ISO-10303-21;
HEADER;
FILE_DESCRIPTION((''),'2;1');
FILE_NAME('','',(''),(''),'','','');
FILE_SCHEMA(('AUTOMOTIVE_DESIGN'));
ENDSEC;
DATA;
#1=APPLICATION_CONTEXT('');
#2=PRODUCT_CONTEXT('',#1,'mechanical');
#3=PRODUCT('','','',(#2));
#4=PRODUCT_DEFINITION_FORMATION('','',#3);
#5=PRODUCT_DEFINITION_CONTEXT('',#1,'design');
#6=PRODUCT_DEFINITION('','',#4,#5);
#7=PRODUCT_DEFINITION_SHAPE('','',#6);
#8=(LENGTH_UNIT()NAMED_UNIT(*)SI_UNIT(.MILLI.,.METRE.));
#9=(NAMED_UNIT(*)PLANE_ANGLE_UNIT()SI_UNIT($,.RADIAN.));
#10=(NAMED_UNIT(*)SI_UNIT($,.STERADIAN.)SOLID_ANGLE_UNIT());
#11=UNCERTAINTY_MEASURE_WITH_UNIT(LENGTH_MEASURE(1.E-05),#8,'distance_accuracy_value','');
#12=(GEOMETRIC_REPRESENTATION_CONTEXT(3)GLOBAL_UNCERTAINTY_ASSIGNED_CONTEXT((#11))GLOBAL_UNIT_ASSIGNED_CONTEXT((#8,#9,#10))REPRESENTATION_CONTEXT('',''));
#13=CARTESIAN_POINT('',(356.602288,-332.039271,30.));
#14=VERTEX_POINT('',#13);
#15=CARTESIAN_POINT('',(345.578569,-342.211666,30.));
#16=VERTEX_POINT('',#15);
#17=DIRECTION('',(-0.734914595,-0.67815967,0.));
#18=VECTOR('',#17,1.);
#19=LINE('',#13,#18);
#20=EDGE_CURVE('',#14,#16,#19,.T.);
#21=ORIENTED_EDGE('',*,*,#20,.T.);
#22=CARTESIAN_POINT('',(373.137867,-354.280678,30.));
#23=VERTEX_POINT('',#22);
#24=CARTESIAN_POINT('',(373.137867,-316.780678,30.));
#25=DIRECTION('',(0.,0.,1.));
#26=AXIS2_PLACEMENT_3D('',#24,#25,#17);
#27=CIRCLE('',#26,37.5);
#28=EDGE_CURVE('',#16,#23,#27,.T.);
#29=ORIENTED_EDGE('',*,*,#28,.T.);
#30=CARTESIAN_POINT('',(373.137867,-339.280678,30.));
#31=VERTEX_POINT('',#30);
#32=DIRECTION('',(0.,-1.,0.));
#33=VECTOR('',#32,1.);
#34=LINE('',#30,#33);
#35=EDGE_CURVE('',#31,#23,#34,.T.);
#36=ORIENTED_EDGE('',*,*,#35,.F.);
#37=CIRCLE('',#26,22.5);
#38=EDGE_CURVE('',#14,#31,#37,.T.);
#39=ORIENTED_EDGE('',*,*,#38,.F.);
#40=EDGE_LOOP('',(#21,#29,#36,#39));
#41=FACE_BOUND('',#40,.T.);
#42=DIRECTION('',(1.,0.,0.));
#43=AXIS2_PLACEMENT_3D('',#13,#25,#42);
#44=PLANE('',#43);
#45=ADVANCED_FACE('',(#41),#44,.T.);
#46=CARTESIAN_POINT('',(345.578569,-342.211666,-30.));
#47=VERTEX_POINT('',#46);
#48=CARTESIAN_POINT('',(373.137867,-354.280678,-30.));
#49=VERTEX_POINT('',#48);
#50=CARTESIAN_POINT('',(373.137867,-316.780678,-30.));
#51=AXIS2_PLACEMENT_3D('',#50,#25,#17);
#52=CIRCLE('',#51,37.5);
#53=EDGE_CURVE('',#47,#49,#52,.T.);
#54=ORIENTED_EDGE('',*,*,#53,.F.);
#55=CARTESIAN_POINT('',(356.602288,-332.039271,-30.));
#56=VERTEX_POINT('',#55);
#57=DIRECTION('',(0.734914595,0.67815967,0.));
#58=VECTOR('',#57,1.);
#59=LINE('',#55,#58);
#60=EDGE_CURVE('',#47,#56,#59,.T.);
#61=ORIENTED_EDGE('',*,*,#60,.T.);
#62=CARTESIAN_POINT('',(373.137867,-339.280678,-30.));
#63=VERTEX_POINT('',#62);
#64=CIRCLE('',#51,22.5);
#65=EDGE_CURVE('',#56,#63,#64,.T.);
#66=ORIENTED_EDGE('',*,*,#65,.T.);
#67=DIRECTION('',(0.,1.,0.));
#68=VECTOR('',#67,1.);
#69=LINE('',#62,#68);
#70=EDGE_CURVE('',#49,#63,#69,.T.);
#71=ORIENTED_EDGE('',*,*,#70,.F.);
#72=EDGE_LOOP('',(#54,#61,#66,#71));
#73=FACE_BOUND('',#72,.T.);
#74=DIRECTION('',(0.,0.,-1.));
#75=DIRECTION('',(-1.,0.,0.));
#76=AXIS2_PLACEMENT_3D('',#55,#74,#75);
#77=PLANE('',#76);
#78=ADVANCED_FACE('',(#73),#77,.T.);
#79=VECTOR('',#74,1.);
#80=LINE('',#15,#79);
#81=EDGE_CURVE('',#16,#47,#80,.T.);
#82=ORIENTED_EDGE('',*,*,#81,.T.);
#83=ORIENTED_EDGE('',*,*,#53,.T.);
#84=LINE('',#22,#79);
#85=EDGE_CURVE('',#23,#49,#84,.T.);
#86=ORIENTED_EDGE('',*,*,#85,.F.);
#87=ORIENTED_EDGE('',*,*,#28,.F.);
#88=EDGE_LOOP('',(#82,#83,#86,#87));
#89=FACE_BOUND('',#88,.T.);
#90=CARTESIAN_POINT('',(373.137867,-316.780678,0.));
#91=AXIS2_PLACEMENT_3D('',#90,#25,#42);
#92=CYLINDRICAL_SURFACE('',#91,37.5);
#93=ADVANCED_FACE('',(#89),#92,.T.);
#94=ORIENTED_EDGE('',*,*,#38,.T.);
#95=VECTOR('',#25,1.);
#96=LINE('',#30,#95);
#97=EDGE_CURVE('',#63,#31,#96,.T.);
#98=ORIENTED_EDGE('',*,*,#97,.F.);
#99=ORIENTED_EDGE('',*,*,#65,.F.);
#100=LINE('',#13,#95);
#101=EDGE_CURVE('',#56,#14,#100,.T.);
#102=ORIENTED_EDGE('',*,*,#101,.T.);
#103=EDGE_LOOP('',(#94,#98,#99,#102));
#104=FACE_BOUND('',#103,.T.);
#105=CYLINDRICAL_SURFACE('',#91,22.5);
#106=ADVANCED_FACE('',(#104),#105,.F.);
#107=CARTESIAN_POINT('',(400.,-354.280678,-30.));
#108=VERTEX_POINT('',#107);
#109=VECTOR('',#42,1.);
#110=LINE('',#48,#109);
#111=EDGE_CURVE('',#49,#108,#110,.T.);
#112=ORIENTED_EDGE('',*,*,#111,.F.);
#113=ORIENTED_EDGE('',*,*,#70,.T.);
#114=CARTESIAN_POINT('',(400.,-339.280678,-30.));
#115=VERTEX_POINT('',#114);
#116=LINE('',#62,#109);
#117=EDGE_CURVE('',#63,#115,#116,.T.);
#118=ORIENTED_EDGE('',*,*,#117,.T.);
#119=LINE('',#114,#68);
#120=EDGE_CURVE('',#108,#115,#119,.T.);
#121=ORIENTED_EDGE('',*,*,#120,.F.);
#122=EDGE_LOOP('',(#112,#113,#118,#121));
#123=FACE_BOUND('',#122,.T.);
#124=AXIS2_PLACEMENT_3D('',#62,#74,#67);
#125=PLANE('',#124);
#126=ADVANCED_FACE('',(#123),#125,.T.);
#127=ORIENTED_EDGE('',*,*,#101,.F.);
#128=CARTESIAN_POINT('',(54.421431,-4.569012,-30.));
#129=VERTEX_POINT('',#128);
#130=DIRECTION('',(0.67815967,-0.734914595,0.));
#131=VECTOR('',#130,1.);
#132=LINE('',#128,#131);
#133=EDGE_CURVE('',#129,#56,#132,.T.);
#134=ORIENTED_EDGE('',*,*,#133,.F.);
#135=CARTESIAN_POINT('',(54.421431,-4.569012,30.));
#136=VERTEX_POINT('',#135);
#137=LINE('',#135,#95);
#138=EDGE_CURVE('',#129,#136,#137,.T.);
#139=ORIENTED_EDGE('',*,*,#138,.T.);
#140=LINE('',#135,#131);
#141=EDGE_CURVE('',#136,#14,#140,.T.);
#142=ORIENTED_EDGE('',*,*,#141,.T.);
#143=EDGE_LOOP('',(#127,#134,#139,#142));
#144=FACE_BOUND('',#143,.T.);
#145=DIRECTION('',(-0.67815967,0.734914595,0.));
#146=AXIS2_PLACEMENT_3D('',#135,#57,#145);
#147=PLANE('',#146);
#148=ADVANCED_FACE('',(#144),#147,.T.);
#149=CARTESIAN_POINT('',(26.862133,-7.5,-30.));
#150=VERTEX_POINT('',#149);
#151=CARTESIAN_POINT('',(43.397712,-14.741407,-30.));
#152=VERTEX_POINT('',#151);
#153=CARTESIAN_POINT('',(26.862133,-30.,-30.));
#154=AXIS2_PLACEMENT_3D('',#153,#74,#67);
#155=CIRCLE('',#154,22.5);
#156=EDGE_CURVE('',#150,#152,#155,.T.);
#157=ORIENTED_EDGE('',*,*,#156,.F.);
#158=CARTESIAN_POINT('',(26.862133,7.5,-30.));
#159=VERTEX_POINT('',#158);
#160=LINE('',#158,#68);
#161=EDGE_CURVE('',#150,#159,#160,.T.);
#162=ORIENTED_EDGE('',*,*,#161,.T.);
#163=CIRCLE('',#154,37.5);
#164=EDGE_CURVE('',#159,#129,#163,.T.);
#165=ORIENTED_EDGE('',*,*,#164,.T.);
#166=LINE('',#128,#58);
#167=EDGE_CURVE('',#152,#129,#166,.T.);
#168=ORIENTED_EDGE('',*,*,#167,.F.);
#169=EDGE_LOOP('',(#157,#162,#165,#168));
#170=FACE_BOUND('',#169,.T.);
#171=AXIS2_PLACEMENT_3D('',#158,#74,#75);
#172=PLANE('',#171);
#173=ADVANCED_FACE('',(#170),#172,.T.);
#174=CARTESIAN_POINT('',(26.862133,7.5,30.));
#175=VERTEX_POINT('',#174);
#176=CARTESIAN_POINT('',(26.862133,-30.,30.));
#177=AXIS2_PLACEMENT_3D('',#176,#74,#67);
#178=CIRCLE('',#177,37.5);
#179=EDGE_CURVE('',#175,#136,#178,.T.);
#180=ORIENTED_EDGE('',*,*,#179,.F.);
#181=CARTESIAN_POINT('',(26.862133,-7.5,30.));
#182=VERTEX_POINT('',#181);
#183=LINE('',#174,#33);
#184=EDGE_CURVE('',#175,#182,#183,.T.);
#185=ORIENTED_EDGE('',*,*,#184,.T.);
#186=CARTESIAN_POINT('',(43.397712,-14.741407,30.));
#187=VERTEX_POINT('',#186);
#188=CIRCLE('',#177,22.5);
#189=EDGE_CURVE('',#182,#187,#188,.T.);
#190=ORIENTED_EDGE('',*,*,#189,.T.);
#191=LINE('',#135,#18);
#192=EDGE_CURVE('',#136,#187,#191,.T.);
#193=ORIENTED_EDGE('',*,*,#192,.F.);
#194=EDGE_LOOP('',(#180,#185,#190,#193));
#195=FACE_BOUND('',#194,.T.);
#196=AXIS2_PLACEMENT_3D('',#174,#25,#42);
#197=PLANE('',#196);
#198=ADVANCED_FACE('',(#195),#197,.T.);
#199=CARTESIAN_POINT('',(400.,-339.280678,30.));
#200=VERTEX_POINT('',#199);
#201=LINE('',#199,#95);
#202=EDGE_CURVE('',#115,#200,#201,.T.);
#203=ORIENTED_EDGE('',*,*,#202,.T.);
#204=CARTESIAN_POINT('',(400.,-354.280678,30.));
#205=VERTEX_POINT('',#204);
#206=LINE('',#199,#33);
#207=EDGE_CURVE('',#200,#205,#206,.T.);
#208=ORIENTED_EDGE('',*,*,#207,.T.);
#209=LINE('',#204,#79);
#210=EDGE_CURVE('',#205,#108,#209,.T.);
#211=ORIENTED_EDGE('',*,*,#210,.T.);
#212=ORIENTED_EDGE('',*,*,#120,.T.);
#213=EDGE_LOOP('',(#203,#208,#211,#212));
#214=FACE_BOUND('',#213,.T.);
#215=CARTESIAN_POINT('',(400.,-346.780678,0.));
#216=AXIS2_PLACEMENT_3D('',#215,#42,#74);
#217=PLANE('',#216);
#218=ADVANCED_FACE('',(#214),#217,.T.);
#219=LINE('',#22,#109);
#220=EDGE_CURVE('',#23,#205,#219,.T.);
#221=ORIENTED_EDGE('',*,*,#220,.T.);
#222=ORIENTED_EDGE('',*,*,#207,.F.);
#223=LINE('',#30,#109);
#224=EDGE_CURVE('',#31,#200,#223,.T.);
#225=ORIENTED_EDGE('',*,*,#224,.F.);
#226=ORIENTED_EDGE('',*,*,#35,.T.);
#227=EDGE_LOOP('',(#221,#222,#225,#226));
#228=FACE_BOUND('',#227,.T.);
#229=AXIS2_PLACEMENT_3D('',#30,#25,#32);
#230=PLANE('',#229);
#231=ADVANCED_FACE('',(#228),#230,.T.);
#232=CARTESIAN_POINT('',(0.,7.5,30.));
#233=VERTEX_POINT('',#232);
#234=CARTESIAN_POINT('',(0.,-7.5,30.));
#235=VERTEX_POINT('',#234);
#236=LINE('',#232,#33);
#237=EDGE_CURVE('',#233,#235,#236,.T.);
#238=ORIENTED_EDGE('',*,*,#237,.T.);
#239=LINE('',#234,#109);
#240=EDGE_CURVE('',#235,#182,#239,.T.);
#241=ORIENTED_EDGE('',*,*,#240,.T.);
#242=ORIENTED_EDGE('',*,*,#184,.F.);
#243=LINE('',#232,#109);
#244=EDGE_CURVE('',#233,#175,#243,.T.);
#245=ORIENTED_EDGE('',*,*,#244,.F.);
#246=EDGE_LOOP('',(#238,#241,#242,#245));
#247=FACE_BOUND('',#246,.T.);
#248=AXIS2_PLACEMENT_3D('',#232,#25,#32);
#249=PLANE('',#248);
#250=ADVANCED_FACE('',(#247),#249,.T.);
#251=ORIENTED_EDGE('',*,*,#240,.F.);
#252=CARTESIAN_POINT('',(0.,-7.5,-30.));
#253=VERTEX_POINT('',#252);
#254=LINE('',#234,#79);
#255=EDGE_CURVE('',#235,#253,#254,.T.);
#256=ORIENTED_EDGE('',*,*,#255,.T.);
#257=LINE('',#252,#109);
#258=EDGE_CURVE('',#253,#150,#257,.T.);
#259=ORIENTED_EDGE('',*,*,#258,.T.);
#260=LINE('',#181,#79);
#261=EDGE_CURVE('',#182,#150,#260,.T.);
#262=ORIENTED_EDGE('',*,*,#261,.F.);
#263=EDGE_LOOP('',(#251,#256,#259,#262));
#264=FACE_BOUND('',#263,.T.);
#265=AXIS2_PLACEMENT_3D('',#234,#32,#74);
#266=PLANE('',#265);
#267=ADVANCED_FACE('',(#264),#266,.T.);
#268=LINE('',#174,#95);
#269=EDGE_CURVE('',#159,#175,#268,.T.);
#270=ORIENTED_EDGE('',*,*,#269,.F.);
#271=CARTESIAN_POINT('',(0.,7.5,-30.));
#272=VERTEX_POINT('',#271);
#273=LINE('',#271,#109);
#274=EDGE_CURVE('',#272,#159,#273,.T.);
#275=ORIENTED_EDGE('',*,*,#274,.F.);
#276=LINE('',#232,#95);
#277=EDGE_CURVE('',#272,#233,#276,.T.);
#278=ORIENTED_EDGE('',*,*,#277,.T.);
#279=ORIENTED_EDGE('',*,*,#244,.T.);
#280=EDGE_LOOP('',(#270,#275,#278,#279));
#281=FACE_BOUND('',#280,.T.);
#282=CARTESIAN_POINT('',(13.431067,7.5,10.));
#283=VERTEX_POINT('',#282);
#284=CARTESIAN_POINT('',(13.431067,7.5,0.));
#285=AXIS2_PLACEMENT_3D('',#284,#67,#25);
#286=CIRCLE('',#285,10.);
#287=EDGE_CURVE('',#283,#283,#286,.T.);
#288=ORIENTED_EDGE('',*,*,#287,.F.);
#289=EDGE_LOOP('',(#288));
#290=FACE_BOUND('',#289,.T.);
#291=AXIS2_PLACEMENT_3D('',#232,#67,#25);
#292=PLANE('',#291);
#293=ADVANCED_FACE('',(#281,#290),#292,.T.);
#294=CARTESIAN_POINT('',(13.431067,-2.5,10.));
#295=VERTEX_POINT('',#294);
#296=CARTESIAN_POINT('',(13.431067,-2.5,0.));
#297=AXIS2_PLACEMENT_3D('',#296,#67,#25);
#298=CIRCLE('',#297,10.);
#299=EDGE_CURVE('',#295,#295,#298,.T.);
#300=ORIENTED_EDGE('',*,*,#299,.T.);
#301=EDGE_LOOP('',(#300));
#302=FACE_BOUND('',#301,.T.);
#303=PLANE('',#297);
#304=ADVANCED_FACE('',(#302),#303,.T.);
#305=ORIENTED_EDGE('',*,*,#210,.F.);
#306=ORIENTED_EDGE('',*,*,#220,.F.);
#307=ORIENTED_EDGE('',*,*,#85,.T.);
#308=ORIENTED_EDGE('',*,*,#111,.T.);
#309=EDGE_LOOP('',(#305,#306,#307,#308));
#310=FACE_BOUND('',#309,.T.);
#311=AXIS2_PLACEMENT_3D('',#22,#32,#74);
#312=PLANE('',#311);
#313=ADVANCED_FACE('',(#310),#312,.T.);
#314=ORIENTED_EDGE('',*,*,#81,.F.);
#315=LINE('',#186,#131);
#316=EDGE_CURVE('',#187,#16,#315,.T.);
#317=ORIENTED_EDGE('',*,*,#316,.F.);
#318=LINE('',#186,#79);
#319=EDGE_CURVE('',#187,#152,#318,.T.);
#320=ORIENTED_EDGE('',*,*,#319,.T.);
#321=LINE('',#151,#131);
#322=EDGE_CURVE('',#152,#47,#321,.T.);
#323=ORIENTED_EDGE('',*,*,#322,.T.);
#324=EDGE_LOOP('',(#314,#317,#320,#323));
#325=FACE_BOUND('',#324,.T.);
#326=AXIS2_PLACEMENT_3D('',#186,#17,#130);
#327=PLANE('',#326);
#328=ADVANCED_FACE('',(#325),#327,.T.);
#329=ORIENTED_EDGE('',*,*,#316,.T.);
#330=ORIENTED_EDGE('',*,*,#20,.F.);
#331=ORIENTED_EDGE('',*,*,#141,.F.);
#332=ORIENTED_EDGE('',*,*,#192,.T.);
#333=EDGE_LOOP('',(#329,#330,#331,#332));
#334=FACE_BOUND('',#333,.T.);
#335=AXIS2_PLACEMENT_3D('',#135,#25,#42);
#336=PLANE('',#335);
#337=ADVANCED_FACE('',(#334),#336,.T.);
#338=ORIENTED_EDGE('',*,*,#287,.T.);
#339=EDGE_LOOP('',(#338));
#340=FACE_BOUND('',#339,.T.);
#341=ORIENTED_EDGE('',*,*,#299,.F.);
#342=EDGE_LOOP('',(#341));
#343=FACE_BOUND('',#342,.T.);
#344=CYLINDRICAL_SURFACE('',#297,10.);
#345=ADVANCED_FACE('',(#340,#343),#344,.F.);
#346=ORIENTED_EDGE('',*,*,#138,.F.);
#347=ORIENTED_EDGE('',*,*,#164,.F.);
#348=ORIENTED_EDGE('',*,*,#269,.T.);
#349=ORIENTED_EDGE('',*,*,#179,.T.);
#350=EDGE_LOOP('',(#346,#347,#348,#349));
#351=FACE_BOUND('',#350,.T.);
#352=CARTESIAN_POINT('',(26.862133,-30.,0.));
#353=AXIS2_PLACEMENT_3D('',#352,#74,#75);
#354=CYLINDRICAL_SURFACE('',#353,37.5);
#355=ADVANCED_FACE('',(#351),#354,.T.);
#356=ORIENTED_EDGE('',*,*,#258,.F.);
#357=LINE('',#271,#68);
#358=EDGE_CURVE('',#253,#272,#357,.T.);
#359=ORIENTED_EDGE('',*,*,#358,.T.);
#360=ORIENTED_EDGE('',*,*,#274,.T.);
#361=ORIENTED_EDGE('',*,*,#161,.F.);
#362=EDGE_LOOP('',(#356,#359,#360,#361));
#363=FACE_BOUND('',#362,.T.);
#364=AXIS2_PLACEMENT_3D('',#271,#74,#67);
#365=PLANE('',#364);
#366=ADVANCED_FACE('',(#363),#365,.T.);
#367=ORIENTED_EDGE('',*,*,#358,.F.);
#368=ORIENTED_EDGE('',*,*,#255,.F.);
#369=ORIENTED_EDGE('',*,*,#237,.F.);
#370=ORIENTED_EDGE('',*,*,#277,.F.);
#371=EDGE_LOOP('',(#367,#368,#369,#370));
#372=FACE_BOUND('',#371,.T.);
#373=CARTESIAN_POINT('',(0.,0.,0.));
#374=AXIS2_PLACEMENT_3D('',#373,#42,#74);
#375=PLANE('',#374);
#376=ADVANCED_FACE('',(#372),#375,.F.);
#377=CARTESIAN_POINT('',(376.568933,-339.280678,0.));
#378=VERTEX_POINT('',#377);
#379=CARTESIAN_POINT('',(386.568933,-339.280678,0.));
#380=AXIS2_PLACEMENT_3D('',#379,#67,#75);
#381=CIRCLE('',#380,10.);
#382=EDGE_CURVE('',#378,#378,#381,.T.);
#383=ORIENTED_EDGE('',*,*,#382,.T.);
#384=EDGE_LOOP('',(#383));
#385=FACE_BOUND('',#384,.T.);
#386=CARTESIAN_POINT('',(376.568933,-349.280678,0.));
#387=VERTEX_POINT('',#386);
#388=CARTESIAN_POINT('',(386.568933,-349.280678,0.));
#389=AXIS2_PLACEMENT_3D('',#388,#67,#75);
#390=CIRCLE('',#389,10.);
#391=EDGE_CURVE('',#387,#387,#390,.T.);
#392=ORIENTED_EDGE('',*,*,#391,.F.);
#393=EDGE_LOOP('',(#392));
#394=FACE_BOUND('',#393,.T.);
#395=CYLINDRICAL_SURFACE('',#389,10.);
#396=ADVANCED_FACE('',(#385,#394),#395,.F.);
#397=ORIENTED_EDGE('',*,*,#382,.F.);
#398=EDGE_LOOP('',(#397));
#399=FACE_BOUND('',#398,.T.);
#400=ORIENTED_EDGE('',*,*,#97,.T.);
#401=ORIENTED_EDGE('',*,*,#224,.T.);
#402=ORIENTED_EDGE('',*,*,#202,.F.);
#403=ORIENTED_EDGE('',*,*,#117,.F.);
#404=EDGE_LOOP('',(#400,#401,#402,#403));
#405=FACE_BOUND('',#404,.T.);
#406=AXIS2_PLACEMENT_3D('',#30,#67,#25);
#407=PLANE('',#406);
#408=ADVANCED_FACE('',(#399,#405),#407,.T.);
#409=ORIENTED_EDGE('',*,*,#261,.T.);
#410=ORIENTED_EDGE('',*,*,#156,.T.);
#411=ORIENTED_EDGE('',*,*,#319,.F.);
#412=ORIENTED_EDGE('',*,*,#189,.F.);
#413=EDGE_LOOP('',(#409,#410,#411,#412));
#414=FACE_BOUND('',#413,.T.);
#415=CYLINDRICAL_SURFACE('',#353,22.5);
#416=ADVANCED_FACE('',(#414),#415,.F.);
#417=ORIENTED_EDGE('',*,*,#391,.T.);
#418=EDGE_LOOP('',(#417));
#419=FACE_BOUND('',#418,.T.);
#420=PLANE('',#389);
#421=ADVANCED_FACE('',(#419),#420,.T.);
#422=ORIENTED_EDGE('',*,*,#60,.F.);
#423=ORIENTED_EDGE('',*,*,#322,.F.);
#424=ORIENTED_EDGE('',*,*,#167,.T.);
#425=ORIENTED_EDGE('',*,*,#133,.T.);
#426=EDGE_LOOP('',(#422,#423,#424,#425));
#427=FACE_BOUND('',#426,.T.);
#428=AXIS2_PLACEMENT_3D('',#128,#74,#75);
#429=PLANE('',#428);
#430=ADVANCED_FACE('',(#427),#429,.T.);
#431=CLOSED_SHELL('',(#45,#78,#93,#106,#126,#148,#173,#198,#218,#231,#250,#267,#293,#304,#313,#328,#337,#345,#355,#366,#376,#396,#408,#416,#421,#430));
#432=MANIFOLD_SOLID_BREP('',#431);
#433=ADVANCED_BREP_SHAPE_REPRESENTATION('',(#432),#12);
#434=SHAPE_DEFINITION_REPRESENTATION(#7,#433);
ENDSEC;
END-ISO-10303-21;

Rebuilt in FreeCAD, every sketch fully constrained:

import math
import FreeCAD as App
import Part
import Sketcher
from FreeCAD import Vector
Q = App.Units.Quantity


def add_polygon(sketch, points):
    """Adds a closed chain of lines whose ends are joined by coincident constraints."""
    first, n = sketch.GeometryCount, len(points)
    for a, b in zip(points, points[1:] + points[:1]):
        sketch.addGeometry(Part.LineSegment(App.Vector(*a, 0), App.Vector(*b, 0)), False)
    for i in range(n):
        sketch.addConstraint(Sketcher.Constraint("Coincident", first + i, 2, first + (i + 1) % n, 1))

doc = App.newDocument("Part")
body = doc.addObject("PartDesign::Body", "Body")

sketch1 = doc.addObject("Sketcher::SketchObject", "Sketch")
body.addObject(sketch1)
sketch1.AttachmentSupport = (doc.YZ_Plane, [""])
sketch1.MapMode = "FlatFace"
add_polygon(sketch1, [(7.5, 30), (-7.5, 30), (-7.5, -30), (7.5, -30)])
sketch1.addConstraint([
    Sketcher.Constraint("Horizontal", 0),
    Sketcher.Constraint("Vertical", 1),
    Sketcher.Constraint("Horizontal", 2),
    Sketcher.Constraint("Vertical", 3),
    Sketcher.Constraint("Symmetric", 0, 2, 2, 2, -1, 1),
    Sketcher.Constraint("DistanceX", 0, 2, 0, 1, Q("15 mm")),
    Sketcher.Constraint("DistanceY", 1, 2, 1, 1, Q("60 mm")),
])

sketch2 = doc.addObject("Sketcher::SketchObject", "Sketch001")
body.addObject(sketch2)
sketch2.AttachmentSupport = (doc.XY_Plane, [""])
sketch2.MapMode = "FlatFace"
sketch2.addGeometry([
    Part.LineSegment(Vector(0, 0, 0), Vector(26.862133, 0, 0)),
    Part.ArcOfCircle(Part.Circle(Vector(26.862133, -30, 0), Vector(0, 0, 1), 30), math.radians(42.7), math.radians(90)),
    Part.LineSegment(Vector(48.909571, -9.65521, 0), Vector(351.090429, -337.125469, 0)),
    Part.ArcOfCircle(Part.Circle(Vector(373.137867, -316.780679, 0), Vector(0, 0, 1), 30), math.radians(-137.3), math.radians(-90)),
    Part.LineSegment(Vector(373.137867, -346.780679, 0), Vector(400, -346.780679, 0)),
], False)
sketch2.addConstraint([
    Sketcher.Constraint("Tangent", 0, 2, 1, 2),
    Sketcher.Constraint("Tangent", 1, 1, 2, 1),
    Sketcher.Constraint("Tangent", 2, 2, 3, 1),
    Sketcher.Constraint("Tangent", 3, 2, 4, 1),
    Sketcher.Constraint("Horizontal", 0),
    Sketcher.Constraint("Horizontal", 4),
    Sketcher.Constraint("Coincident", 0, 1, -1, 1),
    Sketcher.Constraint("Equal", 1, 3),
    Sketcher.Constraint("Equal", 0, 4),
    Sketcher.Constraint("Radius", 1, Q("30 mm")),
    Sketcher.Constraint("DistanceX", -1, 1, 4, 2, Q("400 mm")),
    Sketcher.Constraint("Angle", 2, Q("-47.3 deg")),
    Sketcher.Constraint("DistanceX", 0, 1, 0, 2, Q("26.862133 mm")),
])
doc.recompute()

additivepipe = doc.addObject("PartDesign::AdditivePipe", "AdditivePipe")
body.addObject(additivepipe)
additivepipe.Profile = sketch1
additivepipe.Spine = (sketch2, ["Edge1", "Edge2", "Edge3", "Edge4", "Edge5"])

sketch3 = doc.addObject("Sketcher::SketchObject", "Sketch002")
body.addObject(sketch3)
sketch3.AttachmentSupport = (doc.XZ_Plane, [""])
sketch3.MapMode = "FlatFace"
sketch3.AttachmentOffset = App.Placement(Vector(0, 0, -7.5), App.Rotation())
sketch3.addGeometry(Part.Circle(Vector(13.431067, 0, 0), Vector(0, 0, 1), 10), False)
sketch3.addConstraint([
    Sketcher.Constraint("PointOnObject", 0, 3, -1),
    Sketcher.Constraint("Diameter", 0, Q("20 mm")),
    Sketcher.Constraint("DistanceX", -1, 1, 0, 3, Q("13.431067 mm")),
])
pocket1 = doc.addObject("PartDesign::Pocket", "Pocket")
body.addObject(pocket1)
pocket1.Profile = sketch3
pocket1.Length = 10
pocket1.Reversed = True

sketch4 = doc.addObject("Sketcher::SketchObject", "Sketch003")
body.addObject(sketch4)
sketch4.AttachmentSupport = (doc.XZ_Plane, [""])
sketch4.MapMode = "FlatFace"
sketch4.AttachmentOffset = App.Placement(Vector(0, 0, 339.280679), App.Rotation())
sketch4.addGeometry(Part.Circle(Vector(386.568933, 0, 0), Vector(0, 0, 1), 10), False)
sketch4.addConstraint([
    Sketcher.Constraint("PointOnObject", 0, 3, -1),
    Sketcher.Constraint("Diameter", 0, Q("20 mm")),
    Sketcher.Constraint("DistanceX", -1, 1, 0, 3, Q("386.568933 mm")),
])
pocket2 = doc.addObject("PartDesign::Pocket", "Pocket001")
body.addObject(pocket2)
pocket2.Profile = sketch4
pocket2.Length = 10
pocket2.Reversed = True

doc.recompute()
